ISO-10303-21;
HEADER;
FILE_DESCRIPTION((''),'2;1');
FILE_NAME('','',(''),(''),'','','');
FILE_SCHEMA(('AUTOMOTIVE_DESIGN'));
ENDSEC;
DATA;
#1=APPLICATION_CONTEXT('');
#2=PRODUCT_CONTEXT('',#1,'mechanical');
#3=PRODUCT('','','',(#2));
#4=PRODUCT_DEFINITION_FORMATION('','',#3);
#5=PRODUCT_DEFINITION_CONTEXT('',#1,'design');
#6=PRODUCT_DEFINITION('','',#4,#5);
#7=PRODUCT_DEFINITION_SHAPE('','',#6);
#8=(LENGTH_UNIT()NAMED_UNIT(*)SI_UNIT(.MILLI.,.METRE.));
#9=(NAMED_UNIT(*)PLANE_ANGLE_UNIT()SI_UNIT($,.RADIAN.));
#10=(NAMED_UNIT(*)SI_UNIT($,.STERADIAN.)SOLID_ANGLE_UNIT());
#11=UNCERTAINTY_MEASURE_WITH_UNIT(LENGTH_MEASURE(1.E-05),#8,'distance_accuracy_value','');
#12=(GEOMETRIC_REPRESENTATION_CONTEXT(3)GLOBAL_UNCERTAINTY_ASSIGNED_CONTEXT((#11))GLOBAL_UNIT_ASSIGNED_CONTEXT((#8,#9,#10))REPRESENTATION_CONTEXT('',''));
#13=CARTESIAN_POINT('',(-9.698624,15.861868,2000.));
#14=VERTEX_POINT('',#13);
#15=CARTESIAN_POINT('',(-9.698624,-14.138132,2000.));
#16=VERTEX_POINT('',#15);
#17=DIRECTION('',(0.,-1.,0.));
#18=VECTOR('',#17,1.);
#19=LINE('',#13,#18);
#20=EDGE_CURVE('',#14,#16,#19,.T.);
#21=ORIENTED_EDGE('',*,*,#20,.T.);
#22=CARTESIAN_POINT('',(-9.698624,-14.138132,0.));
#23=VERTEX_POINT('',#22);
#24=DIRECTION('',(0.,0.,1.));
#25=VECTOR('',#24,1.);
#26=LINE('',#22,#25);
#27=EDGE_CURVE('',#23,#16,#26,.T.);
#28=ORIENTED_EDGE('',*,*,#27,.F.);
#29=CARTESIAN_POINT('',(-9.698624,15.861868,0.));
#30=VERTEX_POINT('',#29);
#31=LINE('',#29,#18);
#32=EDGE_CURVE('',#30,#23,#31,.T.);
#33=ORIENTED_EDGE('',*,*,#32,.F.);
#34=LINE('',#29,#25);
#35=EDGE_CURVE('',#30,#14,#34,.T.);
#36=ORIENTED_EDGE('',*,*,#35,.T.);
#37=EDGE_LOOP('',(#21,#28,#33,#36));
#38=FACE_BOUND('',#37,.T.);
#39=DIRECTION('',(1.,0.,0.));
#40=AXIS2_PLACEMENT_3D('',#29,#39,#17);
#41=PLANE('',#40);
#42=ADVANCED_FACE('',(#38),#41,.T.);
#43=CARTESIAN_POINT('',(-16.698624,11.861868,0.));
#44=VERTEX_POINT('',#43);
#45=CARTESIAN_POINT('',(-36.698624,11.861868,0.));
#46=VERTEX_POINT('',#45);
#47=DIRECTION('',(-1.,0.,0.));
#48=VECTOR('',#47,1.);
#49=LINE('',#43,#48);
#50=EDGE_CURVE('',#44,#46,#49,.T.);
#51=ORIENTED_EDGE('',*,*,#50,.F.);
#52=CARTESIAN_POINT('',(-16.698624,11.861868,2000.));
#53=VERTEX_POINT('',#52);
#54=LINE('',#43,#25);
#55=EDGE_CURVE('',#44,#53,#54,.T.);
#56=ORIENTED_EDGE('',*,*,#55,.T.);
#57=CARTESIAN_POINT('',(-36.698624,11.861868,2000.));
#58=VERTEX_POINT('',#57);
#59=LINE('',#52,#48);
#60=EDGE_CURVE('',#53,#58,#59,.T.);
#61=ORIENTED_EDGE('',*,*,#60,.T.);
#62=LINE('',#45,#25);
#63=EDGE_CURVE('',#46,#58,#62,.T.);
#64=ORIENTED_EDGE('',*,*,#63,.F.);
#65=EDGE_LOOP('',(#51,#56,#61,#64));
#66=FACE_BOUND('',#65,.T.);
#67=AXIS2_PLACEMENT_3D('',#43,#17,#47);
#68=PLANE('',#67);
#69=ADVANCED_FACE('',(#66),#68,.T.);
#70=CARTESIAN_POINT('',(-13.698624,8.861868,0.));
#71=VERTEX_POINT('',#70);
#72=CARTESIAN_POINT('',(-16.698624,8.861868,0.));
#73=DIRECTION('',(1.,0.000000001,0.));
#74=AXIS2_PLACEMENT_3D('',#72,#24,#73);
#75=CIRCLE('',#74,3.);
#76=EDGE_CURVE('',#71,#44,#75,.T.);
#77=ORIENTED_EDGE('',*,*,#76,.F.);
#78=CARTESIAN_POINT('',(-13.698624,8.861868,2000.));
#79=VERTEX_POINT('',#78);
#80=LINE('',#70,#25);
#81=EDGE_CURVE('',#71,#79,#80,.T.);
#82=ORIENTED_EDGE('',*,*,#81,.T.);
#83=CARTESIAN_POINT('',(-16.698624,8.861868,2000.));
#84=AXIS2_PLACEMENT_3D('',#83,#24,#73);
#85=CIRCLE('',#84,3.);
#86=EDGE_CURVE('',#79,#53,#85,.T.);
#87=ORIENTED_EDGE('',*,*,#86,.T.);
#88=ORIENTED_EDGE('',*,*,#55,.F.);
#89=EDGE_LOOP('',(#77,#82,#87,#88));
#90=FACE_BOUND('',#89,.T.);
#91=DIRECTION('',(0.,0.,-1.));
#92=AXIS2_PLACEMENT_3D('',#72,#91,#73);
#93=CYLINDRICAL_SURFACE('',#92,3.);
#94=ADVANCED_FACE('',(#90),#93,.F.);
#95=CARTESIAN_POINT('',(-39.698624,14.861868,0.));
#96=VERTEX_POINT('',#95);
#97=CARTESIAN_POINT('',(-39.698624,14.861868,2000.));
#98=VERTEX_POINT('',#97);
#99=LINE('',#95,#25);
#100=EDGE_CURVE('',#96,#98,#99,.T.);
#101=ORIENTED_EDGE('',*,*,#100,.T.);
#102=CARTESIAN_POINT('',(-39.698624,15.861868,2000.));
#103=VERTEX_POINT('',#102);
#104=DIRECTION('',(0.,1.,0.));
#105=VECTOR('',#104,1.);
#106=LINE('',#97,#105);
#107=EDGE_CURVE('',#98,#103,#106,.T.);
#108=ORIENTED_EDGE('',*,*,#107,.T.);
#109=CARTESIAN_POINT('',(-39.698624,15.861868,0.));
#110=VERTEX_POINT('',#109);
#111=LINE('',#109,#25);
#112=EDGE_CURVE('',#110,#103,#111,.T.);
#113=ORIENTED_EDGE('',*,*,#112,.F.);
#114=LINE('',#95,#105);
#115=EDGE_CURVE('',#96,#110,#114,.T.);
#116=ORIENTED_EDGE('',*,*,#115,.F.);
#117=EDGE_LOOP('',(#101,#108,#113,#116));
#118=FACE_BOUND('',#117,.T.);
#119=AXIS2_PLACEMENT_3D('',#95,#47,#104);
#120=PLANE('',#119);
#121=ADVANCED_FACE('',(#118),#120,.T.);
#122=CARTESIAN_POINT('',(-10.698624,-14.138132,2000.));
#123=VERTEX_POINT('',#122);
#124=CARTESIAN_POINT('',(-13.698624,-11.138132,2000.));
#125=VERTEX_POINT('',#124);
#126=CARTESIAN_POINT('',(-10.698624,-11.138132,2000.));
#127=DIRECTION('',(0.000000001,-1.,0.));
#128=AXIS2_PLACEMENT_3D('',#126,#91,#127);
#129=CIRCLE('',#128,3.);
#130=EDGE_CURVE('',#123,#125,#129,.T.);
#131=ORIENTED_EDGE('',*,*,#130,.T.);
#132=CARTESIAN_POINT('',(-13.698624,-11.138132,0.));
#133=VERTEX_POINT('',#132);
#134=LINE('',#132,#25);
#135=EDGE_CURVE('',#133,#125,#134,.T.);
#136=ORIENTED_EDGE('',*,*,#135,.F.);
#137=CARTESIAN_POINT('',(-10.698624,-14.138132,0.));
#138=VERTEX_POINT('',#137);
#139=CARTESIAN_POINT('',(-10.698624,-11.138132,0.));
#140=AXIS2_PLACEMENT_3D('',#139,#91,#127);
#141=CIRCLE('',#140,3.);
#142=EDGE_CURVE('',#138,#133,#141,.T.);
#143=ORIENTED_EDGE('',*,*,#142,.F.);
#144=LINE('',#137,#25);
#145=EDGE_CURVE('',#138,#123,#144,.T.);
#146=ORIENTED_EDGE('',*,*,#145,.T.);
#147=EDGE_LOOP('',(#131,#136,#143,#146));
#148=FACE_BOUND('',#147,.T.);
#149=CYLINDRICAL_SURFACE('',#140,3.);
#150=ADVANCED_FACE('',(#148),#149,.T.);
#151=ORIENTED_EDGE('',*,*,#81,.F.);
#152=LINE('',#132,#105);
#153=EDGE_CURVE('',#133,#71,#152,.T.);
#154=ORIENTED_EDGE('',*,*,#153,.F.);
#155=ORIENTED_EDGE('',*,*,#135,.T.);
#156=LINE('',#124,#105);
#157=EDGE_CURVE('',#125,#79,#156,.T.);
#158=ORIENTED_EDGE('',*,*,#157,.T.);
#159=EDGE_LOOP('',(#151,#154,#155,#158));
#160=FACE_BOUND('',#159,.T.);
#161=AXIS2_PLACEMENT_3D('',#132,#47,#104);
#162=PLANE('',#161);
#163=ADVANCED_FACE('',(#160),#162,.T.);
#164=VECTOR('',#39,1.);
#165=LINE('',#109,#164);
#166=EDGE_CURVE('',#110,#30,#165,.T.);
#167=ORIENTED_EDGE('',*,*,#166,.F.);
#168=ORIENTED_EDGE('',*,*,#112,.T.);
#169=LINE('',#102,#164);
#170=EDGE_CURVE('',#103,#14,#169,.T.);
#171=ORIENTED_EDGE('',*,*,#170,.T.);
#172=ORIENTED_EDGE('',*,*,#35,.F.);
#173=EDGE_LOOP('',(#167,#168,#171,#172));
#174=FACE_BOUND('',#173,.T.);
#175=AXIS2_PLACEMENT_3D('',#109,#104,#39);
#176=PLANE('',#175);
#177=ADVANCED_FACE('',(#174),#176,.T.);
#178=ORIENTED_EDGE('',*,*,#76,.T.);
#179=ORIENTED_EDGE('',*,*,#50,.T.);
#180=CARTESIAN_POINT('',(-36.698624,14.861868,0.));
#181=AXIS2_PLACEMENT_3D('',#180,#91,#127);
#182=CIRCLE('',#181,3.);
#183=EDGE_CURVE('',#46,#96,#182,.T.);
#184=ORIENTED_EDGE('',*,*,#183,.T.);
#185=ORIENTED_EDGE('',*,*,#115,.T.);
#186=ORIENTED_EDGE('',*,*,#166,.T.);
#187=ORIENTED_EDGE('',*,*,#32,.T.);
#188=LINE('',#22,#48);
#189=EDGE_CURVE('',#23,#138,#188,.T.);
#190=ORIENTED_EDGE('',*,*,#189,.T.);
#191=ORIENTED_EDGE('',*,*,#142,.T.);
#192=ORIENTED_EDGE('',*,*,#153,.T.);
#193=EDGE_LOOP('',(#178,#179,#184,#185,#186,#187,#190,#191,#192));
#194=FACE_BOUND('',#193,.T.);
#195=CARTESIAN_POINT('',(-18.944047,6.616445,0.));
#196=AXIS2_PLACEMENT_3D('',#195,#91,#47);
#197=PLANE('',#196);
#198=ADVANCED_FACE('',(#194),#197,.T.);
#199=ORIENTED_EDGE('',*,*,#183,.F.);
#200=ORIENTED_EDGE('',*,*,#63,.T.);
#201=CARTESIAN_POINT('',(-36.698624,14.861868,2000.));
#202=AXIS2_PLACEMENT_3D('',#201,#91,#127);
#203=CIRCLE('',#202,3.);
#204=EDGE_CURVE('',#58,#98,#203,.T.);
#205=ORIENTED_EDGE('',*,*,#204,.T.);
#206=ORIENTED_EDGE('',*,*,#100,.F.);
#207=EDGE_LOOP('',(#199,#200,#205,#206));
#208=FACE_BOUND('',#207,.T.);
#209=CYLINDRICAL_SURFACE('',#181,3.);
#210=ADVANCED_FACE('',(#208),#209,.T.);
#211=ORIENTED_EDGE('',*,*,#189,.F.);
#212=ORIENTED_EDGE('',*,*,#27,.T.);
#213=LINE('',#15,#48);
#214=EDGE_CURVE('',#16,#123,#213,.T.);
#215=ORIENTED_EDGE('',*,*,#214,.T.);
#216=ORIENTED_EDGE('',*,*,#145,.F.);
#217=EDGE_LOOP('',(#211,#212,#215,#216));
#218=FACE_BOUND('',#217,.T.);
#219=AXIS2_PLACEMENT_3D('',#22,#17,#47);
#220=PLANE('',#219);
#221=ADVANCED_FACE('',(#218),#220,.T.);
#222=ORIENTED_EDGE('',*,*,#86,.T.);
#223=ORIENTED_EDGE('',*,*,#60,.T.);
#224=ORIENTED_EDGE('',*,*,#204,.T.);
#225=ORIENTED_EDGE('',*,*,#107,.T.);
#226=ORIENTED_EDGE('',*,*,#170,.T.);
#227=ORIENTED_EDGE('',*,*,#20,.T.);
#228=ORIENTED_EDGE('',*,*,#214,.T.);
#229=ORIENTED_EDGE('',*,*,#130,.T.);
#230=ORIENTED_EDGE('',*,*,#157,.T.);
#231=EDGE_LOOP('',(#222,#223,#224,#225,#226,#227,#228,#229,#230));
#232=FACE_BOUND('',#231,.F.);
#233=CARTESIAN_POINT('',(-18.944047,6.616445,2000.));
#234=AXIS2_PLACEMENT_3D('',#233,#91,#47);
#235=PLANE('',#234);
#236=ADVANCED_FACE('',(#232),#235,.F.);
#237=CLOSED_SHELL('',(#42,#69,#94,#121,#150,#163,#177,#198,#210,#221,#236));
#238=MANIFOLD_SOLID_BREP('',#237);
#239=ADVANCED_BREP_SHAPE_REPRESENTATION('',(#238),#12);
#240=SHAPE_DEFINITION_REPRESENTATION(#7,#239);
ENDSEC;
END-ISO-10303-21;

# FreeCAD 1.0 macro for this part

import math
import FreeCAD as App
import Part
import Sketcher

V = App.Vector
Q = App.Units.Quantity

doc = App.newDocument("Part")
body = doc.addObject("PartDesign::Body", "Body")

sketch1 = doc.addObject("Sketcher::SketchObject", "Sketch")
body.addObject(sketch1)
sketch1.AttachmentSupport = (doc.XY_Plane, [""])
sketch1.MapMode = "FlatFace"
sketch1.addGeometry([
    Part.LineSegment(V(-9.698624, 15.861868, 0), V(-39.698624, 15.861868, 0)),
    Part.LineSegment(V(-39.698624, 15.861868, 0), V(-39.698624, 14.861868, 0)),
    Part.ArcOfCircle(Part.Circle(V(-36.698624, 14.861868, 0), V(0, 0, 1), 3), math.radians(180), math.radians(270)),
    Part.LineSegment(V(-36.698624, 11.861868, 0), V(-16.698624, 11.861868, 0)),
    Part.ArcOfCircle(Part.Circle(V(-16.698624, 8.861868, 0), V(0, 0, 1), 3), math.radians(0), math.radians(90)),
    Part.LineSegment(V(-13.698624, 8.861868, 0), V(-13.698624, -11.138132, 0)),
    Part.ArcOfCircle(Part.Circle(V(-10.698624, -11.138132, 0), V(0, 0, 1), 3), math.radians(180), math.radians(270)),
    Part.LineSegment(V(-10.698624, -14.138132, 0), V(-9.698624, -14.138132, 0)),
    Part.LineSegment(V(-9.698624, -14.138132, 0), V(-9.698624, 15.861868, 0)),
], False)
sketch1.addConstraint([
    Sketcher.Constraint("Coincident", 0, 2, 1, 1),
    Sketcher.Constraint("Tangent", 1, 2, 2, 1),
    Sketcher.Constraint("Tangent", 2, 2, 3, 1),
    Sketcher.Constraint("Tangent", 3, 2, 4, 2),
    Sketcher.Constraint("Tangent", 4, 1, 5, 1),
    Sketcher.Constraint("Tangent", 5, 2, 6, 1),
    Sketcher.Constraint("Tangent", 6, 2, 7, 1),
    Sketcher.Constraint("Coincident", 7, 2, 8, 1),
    Sketcher.Constraint("Coincident", 8, 2, 0, 1),
    Sketcher.Constraint("Horizontal", 0),
    Sketcher.Constraint("Vertical", 1),
    Sketcher.Constraint("Horizontal", 3),
    Sketcher.Constraint("Vertical", 5),
    Sketcher.Constraint("Horizontal", 7),
    Sketcher.Constraint("Vertical", 8),
    Sketcher.Constraint("Equal", 2, 4),
    Sketcher.Constraint("Equal", 4, 6),
    Sketcher.Constraint("Equal", 7, 1),
    Sketcher.Constraint("Equal", 3, 5),
    Sketcher.Constraint("Radius", 2, Q("3 mm")),
    Sketcher.Constraint("DistanceX", 0, 2, 0, 1, Q("30 mm")),
    Sketcher.Constraint("DistanceX", 3, 1, 3, 2, Q("20 mm")),
    Sketcher.Constraint("DistanceY", -1, 1, 2, 3, Q("14.861868 mm")),
    Sketcher.Constraint("DistanceX", 2, 3, -1, 1, Q("36.698624 mm")),
])
pad1 = doc.addObject("PartDesign::Pad", "Pad")
body.addObject(pad1)
pad1.Profile = sketch1
pad1.Length = 2000

doc.recompute()
